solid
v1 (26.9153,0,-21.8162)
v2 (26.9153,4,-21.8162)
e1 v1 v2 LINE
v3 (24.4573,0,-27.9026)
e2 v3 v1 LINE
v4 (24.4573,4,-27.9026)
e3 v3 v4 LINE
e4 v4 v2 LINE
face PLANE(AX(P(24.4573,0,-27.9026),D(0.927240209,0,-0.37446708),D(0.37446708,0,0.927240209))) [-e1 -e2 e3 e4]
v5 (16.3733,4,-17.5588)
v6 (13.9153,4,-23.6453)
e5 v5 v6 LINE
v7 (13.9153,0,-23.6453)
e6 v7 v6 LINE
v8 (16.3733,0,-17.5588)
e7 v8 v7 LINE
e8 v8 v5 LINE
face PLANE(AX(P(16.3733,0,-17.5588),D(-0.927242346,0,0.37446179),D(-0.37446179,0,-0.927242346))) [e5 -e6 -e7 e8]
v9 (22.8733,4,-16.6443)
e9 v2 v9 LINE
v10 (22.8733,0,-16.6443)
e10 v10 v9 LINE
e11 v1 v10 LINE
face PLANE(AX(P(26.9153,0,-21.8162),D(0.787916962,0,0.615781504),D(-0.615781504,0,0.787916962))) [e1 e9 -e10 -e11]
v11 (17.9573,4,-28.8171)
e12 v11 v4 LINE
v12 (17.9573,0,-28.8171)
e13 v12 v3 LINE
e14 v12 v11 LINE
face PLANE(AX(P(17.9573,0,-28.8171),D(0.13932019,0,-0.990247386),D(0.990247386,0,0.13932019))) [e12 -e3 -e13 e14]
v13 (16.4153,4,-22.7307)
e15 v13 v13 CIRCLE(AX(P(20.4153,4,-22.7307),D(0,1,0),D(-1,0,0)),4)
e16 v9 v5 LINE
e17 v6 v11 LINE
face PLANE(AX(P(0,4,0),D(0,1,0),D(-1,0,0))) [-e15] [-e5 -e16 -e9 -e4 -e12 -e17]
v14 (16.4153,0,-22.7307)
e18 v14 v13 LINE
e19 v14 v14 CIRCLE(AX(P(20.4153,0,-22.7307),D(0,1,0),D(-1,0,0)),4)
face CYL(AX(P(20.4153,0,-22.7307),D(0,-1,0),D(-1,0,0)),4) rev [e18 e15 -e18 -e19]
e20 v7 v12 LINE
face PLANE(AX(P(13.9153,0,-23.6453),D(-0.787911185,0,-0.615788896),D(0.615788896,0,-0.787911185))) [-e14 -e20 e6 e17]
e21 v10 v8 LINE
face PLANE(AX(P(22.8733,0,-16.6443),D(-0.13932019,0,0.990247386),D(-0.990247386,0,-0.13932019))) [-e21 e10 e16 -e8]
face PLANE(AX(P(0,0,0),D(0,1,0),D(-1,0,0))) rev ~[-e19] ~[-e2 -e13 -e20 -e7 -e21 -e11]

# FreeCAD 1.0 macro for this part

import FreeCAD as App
import Part
import Sketcher

V = App.Vector
Q = App.Units.Quantity


def add_polygon(sketch, points):
    """Adds a closed chain of lines whose ends are joined by coincident constraints."""
    first, n = sketch.GeometryCount, len(points)
    for a, b in zip(points, points[1:] + points[:1]):
        sketch.addGeometry(Part.LineSegment(App.Vector(*a, 0), App.Vector(*b, 0)), False)
    for i in range(n):
        sketch.addConstraint(Sketcher.Constraint("Coincident", first + i, 2, first + (i + 1) % n, 1))

doc = App.newDocument("Part")
params = doc.addObject("Spreadsheet::Sheet", "Params")
for row, (alias, value) in enumerate([
    ("sketch1_diameter", "8 mm"),
    ("pad1_length", "4 mm"),
], start=1):
    params.set(f"A{row}", alias)
    params.set(f"B{row}", "=" + value)
    params.setAlias(f"B{row}", alias)

body = doc.addObject("PartDesign::Body", "Body")

# Sketch on XZ plane
sketch1 = body.newObject("Sketcher::SketchObject", "Sketch")
sketch1.AttachmentSupport = (doc.getObject("XZ_Plane"), [""])
sketch1.MapMode = "FlatFace"
add_polygon(sketch1, [(24.5, -27.9), (18, -28.8), (13.9, -23.6), (16.4, -17.6), (22.9, -16.6), (26.9, -21.8)])  # lines 0-5
sketch1.addGeometry(Part.Circle(V(20.4, -22.7, 0), V(0, 0, 1), 4), False)  # 6
sketch1.addConstraint([
    Sketcher.Constraint("Parallel", 0, 3),
    Sketcher.Constraint("Parallel", 1, 4),
    Sketcher.Constraint("Parallel", 2, 5),
    Sketcher.Constraint("Equal", 0, 1),
    Sketcher.Constraint("Equal", 1, 2),
    Sketcher.Constraint("Equal", 2, 3),
    Sketcher.Constraint("Diameter", 6, 8.0),
    Sketcher.Constraint("DistanceX", 1, 2, 4, 2, 13.0),
    Sketcher.Constraint("Angle", 1, Q("128.0093 deg")),
    Sketcher.Constraint("Angle", 2, Q("68.009 deg")),
    Sketcher.Constraint("DistanceX", 1, 2, 6, 3, 6.5),
    Sketcher.Constraint("DistanceX", 2, 2, 3, 2, 6.5),
    Sketcher.Constraint("DistanceY", 0, 2, -1, 1, 28.817),
    Sketcher.Constraint("DistanceY", 6, 3, 2, 2, 5.172),
    Sketcher.Constraint("DistanceX", -1, 1, 6, 3, 20.4153),
])
sketch1.setExpression("Constraints[12]", "Params.sketch1_diameter")
pad1 = body.newObject("PartDesign::Pad", "Pad")
pad1.Profile = sketch1
pad1.setExpression("Length", "Params.pad1_length")
pad1.Reversed = True

doc.recompute()
